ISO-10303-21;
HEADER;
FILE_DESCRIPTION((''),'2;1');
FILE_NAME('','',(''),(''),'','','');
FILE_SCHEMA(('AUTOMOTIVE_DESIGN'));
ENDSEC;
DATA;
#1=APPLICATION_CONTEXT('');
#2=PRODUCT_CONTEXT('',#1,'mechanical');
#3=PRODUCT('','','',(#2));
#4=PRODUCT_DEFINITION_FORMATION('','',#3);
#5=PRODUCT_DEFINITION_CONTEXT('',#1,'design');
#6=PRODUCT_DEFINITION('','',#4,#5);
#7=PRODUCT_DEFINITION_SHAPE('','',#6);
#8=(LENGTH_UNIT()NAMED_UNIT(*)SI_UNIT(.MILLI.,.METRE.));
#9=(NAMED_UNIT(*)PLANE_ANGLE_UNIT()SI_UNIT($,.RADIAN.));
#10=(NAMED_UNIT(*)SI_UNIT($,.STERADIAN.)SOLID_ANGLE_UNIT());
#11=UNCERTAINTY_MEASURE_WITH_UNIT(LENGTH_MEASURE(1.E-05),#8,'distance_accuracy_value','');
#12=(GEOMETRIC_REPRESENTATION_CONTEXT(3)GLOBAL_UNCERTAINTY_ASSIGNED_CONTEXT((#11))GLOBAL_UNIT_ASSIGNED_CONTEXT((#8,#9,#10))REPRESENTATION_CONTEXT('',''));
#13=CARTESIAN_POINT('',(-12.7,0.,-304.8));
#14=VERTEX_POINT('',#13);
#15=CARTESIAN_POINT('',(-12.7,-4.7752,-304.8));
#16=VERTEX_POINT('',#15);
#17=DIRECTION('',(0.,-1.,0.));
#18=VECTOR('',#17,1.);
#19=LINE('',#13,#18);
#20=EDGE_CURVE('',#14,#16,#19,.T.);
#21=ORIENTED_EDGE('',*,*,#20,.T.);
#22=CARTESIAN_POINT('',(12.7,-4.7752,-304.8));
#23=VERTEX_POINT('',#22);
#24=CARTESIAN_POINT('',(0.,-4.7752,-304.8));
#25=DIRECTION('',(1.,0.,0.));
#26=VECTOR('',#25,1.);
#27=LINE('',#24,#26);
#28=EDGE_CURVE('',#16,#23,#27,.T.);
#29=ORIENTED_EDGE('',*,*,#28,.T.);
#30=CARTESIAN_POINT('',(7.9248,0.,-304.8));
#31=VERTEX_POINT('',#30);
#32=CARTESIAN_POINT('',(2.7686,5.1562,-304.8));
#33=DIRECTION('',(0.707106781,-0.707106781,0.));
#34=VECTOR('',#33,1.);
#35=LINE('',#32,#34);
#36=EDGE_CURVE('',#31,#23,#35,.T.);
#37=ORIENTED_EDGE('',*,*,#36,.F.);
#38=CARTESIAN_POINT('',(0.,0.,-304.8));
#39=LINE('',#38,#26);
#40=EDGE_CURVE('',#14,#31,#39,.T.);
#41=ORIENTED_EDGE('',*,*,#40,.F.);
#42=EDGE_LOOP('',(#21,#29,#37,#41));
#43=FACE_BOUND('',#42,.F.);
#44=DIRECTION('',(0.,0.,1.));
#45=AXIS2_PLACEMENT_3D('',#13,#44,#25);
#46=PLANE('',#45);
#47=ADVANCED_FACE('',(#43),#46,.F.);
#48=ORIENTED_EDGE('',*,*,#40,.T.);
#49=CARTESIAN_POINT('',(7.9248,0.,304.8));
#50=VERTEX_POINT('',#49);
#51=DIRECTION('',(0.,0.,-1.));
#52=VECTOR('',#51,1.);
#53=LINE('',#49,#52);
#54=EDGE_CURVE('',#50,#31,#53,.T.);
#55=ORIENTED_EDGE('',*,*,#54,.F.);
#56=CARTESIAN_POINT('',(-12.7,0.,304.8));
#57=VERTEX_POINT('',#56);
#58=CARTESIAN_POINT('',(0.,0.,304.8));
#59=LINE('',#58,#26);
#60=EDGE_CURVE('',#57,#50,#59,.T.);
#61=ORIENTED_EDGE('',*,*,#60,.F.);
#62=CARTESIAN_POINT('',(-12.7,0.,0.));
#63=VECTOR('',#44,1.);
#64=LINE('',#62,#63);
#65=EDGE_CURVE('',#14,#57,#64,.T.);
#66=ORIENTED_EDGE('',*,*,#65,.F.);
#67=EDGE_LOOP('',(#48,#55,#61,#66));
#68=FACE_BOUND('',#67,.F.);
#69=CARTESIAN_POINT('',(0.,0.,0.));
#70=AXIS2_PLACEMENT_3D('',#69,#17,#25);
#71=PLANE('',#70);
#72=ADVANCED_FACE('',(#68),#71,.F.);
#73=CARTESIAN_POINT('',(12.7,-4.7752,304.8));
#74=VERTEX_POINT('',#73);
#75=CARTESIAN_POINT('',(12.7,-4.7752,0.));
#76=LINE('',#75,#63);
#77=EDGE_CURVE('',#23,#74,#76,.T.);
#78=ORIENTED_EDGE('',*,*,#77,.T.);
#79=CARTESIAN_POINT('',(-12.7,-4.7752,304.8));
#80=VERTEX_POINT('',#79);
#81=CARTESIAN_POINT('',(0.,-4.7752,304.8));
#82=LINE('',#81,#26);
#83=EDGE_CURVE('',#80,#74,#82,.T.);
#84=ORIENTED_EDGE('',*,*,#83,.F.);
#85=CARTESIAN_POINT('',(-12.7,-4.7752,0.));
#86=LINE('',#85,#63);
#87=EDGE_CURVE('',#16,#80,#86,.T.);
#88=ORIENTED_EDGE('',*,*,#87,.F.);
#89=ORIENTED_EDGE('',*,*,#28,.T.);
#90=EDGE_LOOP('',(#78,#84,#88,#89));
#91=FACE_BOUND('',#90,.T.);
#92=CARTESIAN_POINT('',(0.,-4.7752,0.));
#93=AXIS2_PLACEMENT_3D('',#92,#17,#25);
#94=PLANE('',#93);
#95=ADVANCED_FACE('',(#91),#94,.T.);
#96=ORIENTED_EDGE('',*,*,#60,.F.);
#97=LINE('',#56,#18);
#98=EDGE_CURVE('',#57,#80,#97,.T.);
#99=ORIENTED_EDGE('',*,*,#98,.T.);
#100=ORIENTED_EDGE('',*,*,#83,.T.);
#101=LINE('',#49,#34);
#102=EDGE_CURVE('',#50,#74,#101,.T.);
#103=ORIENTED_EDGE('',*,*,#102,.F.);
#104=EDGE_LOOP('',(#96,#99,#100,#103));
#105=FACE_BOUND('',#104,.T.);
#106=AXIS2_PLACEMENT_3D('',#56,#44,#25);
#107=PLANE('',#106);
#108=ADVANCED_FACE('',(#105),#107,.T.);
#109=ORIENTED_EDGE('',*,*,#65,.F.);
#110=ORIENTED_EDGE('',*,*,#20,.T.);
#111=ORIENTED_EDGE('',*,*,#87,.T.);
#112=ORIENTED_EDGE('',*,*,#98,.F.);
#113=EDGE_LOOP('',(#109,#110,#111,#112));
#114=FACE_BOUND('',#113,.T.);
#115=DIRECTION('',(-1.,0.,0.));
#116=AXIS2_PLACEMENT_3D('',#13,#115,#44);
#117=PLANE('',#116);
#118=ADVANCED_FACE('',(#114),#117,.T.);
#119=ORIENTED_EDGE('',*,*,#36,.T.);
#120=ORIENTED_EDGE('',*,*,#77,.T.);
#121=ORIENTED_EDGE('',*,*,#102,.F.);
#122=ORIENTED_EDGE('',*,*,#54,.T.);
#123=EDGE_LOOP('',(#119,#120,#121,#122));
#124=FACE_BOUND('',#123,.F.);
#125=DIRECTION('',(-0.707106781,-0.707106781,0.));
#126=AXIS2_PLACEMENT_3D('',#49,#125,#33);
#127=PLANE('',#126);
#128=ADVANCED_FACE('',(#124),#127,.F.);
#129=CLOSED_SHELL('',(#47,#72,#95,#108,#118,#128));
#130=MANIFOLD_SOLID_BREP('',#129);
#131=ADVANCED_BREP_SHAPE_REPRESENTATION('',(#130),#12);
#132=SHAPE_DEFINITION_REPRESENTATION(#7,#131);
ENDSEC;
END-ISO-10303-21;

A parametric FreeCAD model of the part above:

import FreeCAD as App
import Part
import Sketcher
Q = App.Units.Quantity

doc = App.newDocument("Part")
body = doc.addObject("PartDesign::Body", "Body")

# Sketch on XZ plane
sketch1 = body.newObject("Sketcher::SketchObject", "Sketch")
sketch1.AttachmentSupport = (doc.getObject("XZ_Plane"), [""])
sketch1.MapMode = "FlatFace"
sketch1.addGeometry([
    Part.LineSegment(App.Vector(-13, 305, 0), App.Vector(-13, -305, 0)),
    Part.LineSegment(App.Vector(-13, -305, 0), App.Vector(13, -305, 0)),
    Part.LineSegment(App.Vector(13, -305, 0), App.Vector(13, 305, 0)),
    Part.LineSegment(App.Vector(13, 305, 0), App.Vector(-13, 305, 0)),
], False)
sketch1.addConstraint([
    Sketcher.Constraint("Coincident", 0, 2, 1, 1),
    Sketcher.Constraint("Coincident", 1, 2, 2, 1),
    Sketcher.Constraint("Coincident", 2, 2, 3, 1),
    Sketcher.Constraint("Coincident", 3, 2, 0, 1),
    Sketcher.Constraint("Vertical", 0),
    Sketcher.Constraint("Horizontal", 1),
    Sketcher.Constraint("Vertical", 2),
    Sketcher.Constraint("Horizontal", 3),
    Sketcher.Constraint("Symmetric", 0, 2, 2, 2, -1, 1),
    Sketcher.Constraint("DistanceX", 1, 1, 1, 2, Q("1 in")),
    Sketcher.Constraint("DistanceY", 0, 2, 0, 1, Q("24 in")),
])
pad1 = body.newObject("PartDesign::Pad", "Pad")
pad1.Profile = sketch1
pad1.Length = Q("0.188 in")

# Sketch on XY plane
sketch2 = body.newObject("Sketcher::SketchObject", "Sketch001")
sketch2.AttachmentSupport = (doc.getObject("XY_Plane"), [""])
sketch2.MapMode = "FlatFace"
sketch2.AttachmentOffset = App.Placement(App.Vector(0, 0, 12 * 25.4), App.Rotation())
sketch2.addGeometry([
    Part.LineSegment(App.Vector(7.9, 0, 0), App.Vector(12.7, -4.8, 0)),
    Part.LineSegment(App.Vector(12.7, -4.8, 0), App.Vector(12.7, 0, 0)),
    Part.LineSegment(App.Vector(12.7, 0, 0), App.Vector(7.9, 0, 0)),
], False)
sketch2.addConstraint([
    Sketcher.Constraint("Coincident", 0, 2, 1, 1),
    Sketcher.Constraint("Coincident", 1, 2, 2, 1),
    Sketcher.Constraint("Coincident", 2, 2, 0, 1),
    Sketcher.Constraint("Vertical", 1),
    Sketcher.Constraint("Horizontal", 2),
    Sketcher.Constraint("PointOnObject", 1, 2, -1),
    Sketcher.Constraint("Equal", 2, 1),
    Sketcher.Constraint("DistanceX", -1, 1, 0, 2, Q("0.5 in")),
    Sketcher.Constraint("DistanceX", 2, 2, 2, 1, Q("0.188 in")),
])
pocket1 = body.newObject("PartDesign::Pocket", "Pocket")
pocket1.Profile = sketch2
pocket1.Type = "ThroughAll"

doc.recompute()
